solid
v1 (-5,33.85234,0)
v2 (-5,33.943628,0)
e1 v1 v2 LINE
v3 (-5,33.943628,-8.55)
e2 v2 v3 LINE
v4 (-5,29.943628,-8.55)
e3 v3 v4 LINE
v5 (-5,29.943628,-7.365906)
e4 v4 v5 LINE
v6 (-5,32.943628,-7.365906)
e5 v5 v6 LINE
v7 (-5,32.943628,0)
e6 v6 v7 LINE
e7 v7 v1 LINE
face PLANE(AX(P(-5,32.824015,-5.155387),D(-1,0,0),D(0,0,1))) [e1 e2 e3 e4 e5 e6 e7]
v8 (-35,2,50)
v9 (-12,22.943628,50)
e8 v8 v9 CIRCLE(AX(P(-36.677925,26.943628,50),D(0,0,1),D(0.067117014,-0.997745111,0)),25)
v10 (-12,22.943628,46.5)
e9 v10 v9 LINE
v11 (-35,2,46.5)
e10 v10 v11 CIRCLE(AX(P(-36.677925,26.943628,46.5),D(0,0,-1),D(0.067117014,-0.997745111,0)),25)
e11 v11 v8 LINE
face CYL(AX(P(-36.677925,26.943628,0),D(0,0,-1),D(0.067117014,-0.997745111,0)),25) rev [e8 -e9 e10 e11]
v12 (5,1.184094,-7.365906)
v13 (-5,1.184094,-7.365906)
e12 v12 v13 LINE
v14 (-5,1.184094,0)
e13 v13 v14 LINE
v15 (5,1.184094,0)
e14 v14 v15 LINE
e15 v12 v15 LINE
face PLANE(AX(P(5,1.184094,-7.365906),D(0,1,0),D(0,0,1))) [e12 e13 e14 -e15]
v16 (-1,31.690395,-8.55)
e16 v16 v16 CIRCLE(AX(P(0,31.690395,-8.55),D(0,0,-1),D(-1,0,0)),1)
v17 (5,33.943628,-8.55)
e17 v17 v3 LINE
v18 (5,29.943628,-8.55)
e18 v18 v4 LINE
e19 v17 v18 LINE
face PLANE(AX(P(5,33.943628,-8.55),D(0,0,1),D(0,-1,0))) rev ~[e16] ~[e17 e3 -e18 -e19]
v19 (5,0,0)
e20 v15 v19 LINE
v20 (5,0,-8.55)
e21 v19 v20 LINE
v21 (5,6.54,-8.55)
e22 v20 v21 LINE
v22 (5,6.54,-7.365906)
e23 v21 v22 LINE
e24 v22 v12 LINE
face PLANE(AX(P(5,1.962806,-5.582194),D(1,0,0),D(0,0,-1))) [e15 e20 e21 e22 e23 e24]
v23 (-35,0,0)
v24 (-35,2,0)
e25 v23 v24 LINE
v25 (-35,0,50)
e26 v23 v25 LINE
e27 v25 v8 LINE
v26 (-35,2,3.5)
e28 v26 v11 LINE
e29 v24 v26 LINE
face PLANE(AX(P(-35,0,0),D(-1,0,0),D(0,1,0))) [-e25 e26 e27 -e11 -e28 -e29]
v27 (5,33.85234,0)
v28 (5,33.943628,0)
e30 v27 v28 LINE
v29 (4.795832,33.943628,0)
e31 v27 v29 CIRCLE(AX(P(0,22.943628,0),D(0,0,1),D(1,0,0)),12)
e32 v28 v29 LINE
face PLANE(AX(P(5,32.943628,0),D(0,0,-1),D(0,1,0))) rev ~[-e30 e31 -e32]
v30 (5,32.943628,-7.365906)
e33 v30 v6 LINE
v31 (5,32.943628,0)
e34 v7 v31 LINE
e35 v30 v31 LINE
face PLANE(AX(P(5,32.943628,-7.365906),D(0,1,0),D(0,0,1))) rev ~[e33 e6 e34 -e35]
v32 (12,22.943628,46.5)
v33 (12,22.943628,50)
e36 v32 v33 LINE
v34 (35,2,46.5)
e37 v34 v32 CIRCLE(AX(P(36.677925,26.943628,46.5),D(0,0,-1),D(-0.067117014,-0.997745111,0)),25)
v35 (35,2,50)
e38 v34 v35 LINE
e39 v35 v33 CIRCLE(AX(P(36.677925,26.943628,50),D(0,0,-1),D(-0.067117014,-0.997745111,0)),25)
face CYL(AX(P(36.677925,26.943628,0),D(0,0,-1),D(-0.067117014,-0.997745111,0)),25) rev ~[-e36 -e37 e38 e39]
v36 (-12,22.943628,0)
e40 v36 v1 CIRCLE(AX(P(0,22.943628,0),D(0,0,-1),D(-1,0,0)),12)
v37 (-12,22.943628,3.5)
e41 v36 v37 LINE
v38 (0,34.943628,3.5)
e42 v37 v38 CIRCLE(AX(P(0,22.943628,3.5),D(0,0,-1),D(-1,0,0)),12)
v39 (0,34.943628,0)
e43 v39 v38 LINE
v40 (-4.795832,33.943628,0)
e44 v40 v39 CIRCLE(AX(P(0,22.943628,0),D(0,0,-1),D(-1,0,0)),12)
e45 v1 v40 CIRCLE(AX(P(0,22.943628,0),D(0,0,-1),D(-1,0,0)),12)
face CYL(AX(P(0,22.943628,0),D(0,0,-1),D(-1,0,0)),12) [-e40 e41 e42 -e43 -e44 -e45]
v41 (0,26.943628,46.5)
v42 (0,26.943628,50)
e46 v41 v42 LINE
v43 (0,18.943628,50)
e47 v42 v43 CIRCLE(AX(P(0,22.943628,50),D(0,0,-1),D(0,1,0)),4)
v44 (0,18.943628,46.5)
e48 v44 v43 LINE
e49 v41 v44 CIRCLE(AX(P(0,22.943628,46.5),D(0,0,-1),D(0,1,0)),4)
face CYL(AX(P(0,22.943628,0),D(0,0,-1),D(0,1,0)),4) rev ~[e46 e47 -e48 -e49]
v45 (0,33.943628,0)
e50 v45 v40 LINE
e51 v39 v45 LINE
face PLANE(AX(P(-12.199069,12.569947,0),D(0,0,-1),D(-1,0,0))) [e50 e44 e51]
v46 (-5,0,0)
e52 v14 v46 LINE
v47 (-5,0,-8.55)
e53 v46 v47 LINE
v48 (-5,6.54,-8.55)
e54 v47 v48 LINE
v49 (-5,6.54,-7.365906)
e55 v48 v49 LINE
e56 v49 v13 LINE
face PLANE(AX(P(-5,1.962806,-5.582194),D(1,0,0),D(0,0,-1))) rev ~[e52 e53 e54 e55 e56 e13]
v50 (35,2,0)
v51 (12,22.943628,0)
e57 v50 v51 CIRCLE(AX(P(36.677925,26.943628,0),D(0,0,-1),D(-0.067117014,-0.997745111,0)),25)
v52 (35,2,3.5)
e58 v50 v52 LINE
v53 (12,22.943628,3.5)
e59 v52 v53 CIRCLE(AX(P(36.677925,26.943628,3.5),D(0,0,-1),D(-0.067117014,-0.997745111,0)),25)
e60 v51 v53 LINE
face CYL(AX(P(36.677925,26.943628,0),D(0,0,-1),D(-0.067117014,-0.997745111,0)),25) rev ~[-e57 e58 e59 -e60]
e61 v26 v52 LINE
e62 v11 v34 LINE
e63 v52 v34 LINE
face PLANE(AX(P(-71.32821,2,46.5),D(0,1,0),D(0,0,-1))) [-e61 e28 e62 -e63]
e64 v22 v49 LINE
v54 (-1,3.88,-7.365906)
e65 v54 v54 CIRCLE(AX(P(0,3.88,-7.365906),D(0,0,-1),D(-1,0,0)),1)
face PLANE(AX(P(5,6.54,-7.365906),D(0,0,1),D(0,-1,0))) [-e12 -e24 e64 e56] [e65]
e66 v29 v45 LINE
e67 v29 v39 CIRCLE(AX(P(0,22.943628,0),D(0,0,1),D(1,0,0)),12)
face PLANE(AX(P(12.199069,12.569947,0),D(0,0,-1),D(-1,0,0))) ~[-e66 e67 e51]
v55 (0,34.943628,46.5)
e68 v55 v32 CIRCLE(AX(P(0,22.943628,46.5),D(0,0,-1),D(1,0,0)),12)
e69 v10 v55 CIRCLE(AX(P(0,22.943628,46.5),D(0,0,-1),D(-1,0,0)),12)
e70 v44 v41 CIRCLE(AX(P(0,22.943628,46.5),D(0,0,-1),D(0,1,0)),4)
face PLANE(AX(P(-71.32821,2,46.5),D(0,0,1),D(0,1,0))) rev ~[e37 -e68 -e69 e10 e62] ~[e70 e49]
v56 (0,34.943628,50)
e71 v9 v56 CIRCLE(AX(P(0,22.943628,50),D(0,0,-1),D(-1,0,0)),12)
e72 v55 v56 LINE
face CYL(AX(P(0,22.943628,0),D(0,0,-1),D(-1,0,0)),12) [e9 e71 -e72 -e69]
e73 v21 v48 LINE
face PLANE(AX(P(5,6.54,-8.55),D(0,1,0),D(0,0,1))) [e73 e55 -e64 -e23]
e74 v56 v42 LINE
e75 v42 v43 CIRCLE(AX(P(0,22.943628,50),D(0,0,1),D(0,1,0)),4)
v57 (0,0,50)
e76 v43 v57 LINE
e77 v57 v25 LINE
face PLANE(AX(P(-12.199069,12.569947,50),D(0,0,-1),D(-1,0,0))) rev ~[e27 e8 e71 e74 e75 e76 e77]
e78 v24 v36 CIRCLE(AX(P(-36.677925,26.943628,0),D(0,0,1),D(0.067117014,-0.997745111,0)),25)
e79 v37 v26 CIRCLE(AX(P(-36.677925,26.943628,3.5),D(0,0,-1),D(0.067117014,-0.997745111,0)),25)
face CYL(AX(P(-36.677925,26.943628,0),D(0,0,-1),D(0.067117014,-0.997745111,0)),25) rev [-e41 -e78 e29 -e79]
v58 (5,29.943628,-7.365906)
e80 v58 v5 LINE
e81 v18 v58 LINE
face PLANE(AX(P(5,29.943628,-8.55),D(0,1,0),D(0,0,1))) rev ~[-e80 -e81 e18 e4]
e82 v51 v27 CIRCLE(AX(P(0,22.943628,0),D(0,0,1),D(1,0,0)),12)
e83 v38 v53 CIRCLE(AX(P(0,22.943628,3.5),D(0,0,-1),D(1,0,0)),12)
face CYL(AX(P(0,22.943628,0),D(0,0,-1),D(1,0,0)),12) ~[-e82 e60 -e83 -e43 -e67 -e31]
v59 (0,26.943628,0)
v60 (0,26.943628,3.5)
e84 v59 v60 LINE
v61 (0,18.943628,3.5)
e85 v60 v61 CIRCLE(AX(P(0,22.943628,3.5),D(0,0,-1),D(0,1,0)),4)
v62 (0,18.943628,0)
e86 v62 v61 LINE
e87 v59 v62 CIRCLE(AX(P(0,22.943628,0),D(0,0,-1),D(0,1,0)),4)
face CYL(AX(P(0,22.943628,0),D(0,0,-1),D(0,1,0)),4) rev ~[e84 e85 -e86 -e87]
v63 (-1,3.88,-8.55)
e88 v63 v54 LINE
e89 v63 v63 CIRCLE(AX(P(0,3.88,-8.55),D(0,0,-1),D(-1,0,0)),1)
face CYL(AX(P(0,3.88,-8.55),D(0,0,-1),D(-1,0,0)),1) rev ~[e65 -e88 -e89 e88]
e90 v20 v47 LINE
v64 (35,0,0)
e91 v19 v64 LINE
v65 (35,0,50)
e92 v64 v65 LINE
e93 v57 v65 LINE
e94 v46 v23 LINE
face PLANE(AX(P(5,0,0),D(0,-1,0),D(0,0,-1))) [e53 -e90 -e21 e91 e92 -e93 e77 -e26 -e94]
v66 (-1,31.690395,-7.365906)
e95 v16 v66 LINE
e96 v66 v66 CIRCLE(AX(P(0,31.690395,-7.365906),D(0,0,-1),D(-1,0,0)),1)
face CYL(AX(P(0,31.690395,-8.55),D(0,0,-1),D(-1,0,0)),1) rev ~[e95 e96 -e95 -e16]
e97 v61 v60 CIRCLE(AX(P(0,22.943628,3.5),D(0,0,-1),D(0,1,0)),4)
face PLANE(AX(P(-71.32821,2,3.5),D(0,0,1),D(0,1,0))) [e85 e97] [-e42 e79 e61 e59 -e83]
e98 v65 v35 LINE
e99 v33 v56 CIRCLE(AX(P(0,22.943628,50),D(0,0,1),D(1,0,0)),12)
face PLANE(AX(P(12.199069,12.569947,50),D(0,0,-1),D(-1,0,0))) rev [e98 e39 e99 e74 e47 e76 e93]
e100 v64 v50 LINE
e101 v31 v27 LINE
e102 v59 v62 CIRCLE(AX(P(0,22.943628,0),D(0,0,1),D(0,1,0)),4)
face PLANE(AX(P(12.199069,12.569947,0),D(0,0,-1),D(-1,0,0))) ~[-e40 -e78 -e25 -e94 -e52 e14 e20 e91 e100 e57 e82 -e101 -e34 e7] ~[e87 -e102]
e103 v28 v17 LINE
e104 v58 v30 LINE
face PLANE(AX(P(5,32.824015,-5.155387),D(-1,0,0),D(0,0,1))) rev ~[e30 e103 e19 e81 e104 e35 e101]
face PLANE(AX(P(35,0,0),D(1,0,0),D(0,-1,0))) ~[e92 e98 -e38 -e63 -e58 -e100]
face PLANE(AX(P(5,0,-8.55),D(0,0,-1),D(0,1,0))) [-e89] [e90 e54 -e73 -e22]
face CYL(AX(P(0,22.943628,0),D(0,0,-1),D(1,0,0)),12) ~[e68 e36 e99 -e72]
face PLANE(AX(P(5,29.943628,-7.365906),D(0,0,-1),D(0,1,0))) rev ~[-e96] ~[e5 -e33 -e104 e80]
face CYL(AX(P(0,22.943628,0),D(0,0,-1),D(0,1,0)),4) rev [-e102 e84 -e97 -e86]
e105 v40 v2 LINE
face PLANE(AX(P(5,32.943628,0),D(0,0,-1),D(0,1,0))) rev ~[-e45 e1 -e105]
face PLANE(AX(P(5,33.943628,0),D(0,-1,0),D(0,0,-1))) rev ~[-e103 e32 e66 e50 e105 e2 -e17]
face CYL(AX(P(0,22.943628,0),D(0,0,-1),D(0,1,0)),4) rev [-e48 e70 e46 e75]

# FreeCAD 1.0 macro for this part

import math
import FreeCAD as App
import Part
import Sketcher
from FreeCAD import Vector

doc = App.newDocument("Part")
body = doc.addObject("PartDesign::Body", "Body")

# Sketch on XY plane
sketch1 = body.newObject("Sketcher::SketchObject", "Sketch")
sketch1.AttachmentSupport = (doc.getObject("XY_Plane"), [""])
sketch1.MapMode = "FlatFace"
sketch1.addGeometry([
    Part.LineSegment(Vector(0, 26.9, 0), Vector(0, 34.9, 0)),  # 0
    Part.ArcOfCircle(Part.Circle(Vector(0, 22.9, 0), Vector(0, 0, 1), 12), math.radians(90), math.radians(180)),  # 1
    Part.ArcOfCircle(Part.Circle(Vector(-36.7, 26.9, 0), Vector(0, 0, 1), 25), math.radians(-86), math.radians(-9)),  # 2
    Part.LineSegment(Vector(-35, 2, 0), Vector(-35, 0, 0)),  # 3
    Part.LineSegment(Vector(-35, 0, 0), Vector(0, 0, 0)),  # 4
    Part.LineSegment(Vector(0, 0, 0), Vector(0, 18.9, 0)),  # 5
    Part.ArcOfCircle(Part.Circle(Vector(0, 22.9, 0), Vector(0, 0, 1), 4), math.radians(90), math.radians(270)),  # 6
], False)
sketch1.addConstraint([
    Sketcher.Constraint("Coincident", 0, 2, 1, 1),
    Sketcher.Constraint("Coincident", 1, 2, 2, 2),
    Sketcher.Constraint("Coincident", 2, 1, 3, 1),
    Sketcher.Constraint("Coincident", 3, 2, 4, 1),
    Sketcher.Constraint("Coincident", 4, 2, 5, 1),
    Sketcher.Constraint("Coincident", 5, 2, 6, 2),
    Sketcher.Constraint("Coincident", 6, 1, 0, 1),
    Sketcher.Constraint("Vertical", 0),
    Sketcher.Constraint("Vertical", 3),
    Sketcher.Constraint("Horizontal", 4),
    Sketcher.Constraint("Vertical", 5),
    Sketcher.Constraint("Coincident", 4, 2, -1, 1),
    Sketcher.Constraint("Coincident", 6, 3, 1, 3),
    Sketcher.Constraint("PointOnObject", 1, 3, -2),
    Sketcher.Constraint("PointOnObject", 0, 2, -2),
    Sketcher.Constraint("Horizontal", 6, 3, 1, 2),
    Sketcher.Constraint("Horizontal", 2, 3, 6, 1),
    Sketcher.Constraint("Radius", 1, 12.0),
    Sketcher.Constraint("Radius", 2, 25.0),
    Sketcher.Constraint("Radius", 6, 4.0),
    Sketcher.Constraint("DistanceX", 4, 1, 4, 2, 35.0),
    Sketcher.Constraint("DistanceY", 3, 2, 3, 1, 2.0),
])
pad1 = body.newObject("PartDesign::Pad", "Pad")
pad1.Profile = sketch1
pad1.Length = 50
doc.recompute()

mirrored = body.newObject("PartDesign::Mirrored", "Mirrored")
mirrored.Originals = [pad1]
mirrored.MirrorPlane = (doc.getObject("YZ_Plane"), [""])
body.Tip = mirrored

# Sketch on YZ plane
sketch2 = body.newObject("Sketcher::SketchObject", "Sketch001")
sketch2.AttachmentSupport = (doc.getObject("YZ_Plane"), [""])
sketch2.MapMode = "FlatFace"
sketch2.addGeometry([
    Part.LineSegment(Vector(43, 46, 0), Vector(2, 46, 0)),
    Part.LineSegment(Vector(2, 46, 0), Vector(2, 4, 0)),
    Part.LineSegment(Vector(2, 4, 0), Vector(43, 4, 0)),
    Part.LineSegment(Vector(43, 4, 0), Vector(43, 46, 0)),
], False)
sketch2.addConstraint([
    Sketcher.Constraint("Coincident", 0, 2, 1, 1),
    Sketcher.Constraint("Coincident", 1, 2, 2, 1),
    Sketcher.Constraint("Coincident", 2, 2, 3, 1),
    Sketcher.Constraint("Coincident", 3, 2, 0, 1),
    Sketcher.Constraint("Horizontal", 0),
    Sketcher.Constraint("Vertical", 1),
    Sketcher.Constraint("Horizontal", 2),
    Sketcher.Constraint("Vertical", 3),
    Sketcher.Constraint("DistanceY", 1, 2, 1, 1, 43.0),
    Sketcher.Constraint("DistanceX", -1, 1, 0, 2, 2.0),
    Sketcher.Constraint("DistanceY", -1, 1, 0, 2, 46.5),
    Sketcher.Constraint("DistanceX", 0, 2, 0, 1, 41.467756),
])
pocket1 = body.newObject("PartDesign::Pocket", "Pocket")
pocket1.Profile = sketch2
pocket1.Type = "ThroughAll"
pocket1.Midplane = True

# Sketch on YZ plane
sketch3 = body.newObject("Sketcher::SketchObject", "Sketch002")
sketch3.AttachmentSupport = (doc.getObject("YZ_Plane"), [""])
sketch3.MapMode = "FlatFace"
sketch3.addGeometry([
    Part.LineSegment(Vector(1.2, -7.4, 0), Vector(6.5, -7.4, 0)),  # 0
    Part.LineSegment(Vector(6.5, -7.4, 0), Vector(6.5, -8.6, 0)),  # 1
    Part.LineSegment(Vector(6.5, -8.6, 0), Vector(0, -8.6, 0)),  # 2
    Part.LineSegment(Vector(0, -8.6, 0), Vector(0, 0, 0)),  # 3
    Part.LineSegment(Vector(0, 0, 0), Vector(1.2, 0, 0)),  # 4
    Part.LineSegment(Vector(1.2, 0, 0), Vector(1.2, -7.4, 0)),  # 5
    Part.LineSegment(Vector(32.9, 0, 0), Vector(33.9, 0, 0)),  # 6
    Part.LineSegment(Vector(33.9, 0, 0), Vector(33.9, -8.6, 0)),  # 7
    Part.LineSegment(Vector(33.9, -8.6, 0), Vector(29.9, -8.6, 0)),  # 8
    Part.LineSegment(Vector(29.9, -8.6, 0), Vector(29.9, -7.4, 0)),  # 9
    Part.LineSegment(Vector(29.9, -7.4, 0), Vector(32.9, -7.4, 0)),  # 10
    Part.LineSegment(Vector(32.9, -7.4, 0), Vector(32.9, 0, 0)),  # 11
], False)
sketch3.addConstraint([
    Sketcher.Constraint("Coincident", 0, 2, 1, 1),
    Sketcher.Constraint("Coincident", 1, 2, 2, 1),
    Sketcher.Constraint("Coincident", 2, 2, 3, 1),
    Sketcher.Constraint("Coincident", 3, 2, 4, 1),
    Sketcher.Constraint("Coincident", 4, 2, 5, 1),
    Sketcher.Constraint("Coincident", 5, 2, 0, 1),
    Sketcher.Constraint("Coincident", 6, 2, 7, 1),
    Sketcher.Constraint("Coincident", 7, 2, 8, 1),
    Sketcher.Constraint("Coincident", 8, 2, 9, 1),
    Sketcher.Constraint("Coincident", 9, 2, 10, 1),
    Sketcher.Constraint("Coincident", 10, 2, 11, 1),
    Sketcher.Constraint("Coincident", 11, 2, 6, 1),
    Sketcher.Constraint("Horizontal", 0),
    Sketcher.Constraint("Vertical", 1),
    Sketcher.Constraint("Horizontal", 2),
    Sketcher.Constraint("Vertical", 3),
    Sketcher.Constraint("Horizontal", 4),
    Sketcher.Constraint("Vertical", 5),
    Sketcher.Constraint("Horizontal", 6),
    Sketcher.Constraint("Vertical", 7),
    Sketcher.Constraint("Horizontal", 8),
    Sketcher.Constraint("Vertical", 9),
    Sketcher.Constraint("Horizontal", 10),
    Sketcher.Constraint("Vertical", 11),
    Sketcher.Constraint("Coincident", 3, 2, -1, 1),
    Sketcher.Constraint("PointOnObject", 6, 2, -1),
    Sketcher.Constraint("Horizontal", 2, 2, 7, 2),
    Sketcher.Constraint("Horizontal", 5, 2, 9, 2),
    Sketcher.Constraint("Equal", 4, 1),
    Sketcher.Constraint("DistanceX", 6, 1, 6, 2, 1.0),
    Sketcher.Constraint("DistanceX", 8, 2, 8, 1, 4.0),
    Sketcher.Constraint("DistanceX", 2, 2, 2, 1, 6.54),
    Sketcher.Constraint("DistanceY", 3, 1, 3, 2, 8.55),
    Sketcher.Constraint("DistanceX", 0, 1, 0, 2, 5.355906),
    Sketcher.Constraint("DistanceX", -1, 1, 6, 2, 33.943628),
])
pad2 = body.newObject("PartDesign::Pad", "Pad001")
pad2.Profile = sketch3
pad2.Type = "TwoLengths"
pad2.Length = 5
pad2.Length2 = 5
pad2.Reversed = True

# Sketch on XY plane
sketch4 = body.newObject("Sketcher::SketchObject", "Sketch003")
sketch4.AttachmentSupport = (doc.getObject("XY_Plane"), [""])
sketch4.MapMode = "FlatFace"
sketch4.AttachmentOffset = App.Placement(Vector(0, 0, -8.55), App.Rotation())
sketch4.addGeometry(Part.Circle(Vector(0, 3.9, 0), Vector(0, 0, 1), 1), False)
sketch4.addConstraint([
    Sketcher.Constraint("PointOnObject", 0, 3, -2),
    Sketcher.Constraint("Diameter", 0, 2.0),
    Sketcher.Constraint("DistanceY", -1, 1, 0, 3, 3.88),
])
pocket2 = body.newObject("PartDesign::Pocket", "Pocket001")
pocket2.Profile = sketch4
pocket2.Type = "UpToFirst"
pocket2.Reversed = True

# Sketch on XY plane
sketch5 = body.newObject("Sketcher::SketchObject", "Sketch004")
sketch5.AttachmentSupport = (doc.getObject("XY_Plane"), [""])
sketch5.MapMode = "FlatFace"
sketch5.AttachmentOffset = App.Placement(Vector(0, 0, -8.55), App.Rotation())
sketch5.addGeometry(Part.Circle(Vector(0, 31.7, 0), Vector(0, 0, 1), 1), False)
sketch5.addConstraint([
    Sketcher.Constraint("PointOnObject", 0, 3, -2),
    Sketcher.Constraint("Diameter", 0, 2.0),
    Sketcher.Constraint("DistanceY", -1, 1, 0, 3, 31.690395),
])
pocket3 = body.newObject("PartDesign::Pocket", "Pocket002")
pocket3.Profile = sketch5
pocket3.Type = "UpToFirst"
pocket3.Reversed = True

doc.recompute()
